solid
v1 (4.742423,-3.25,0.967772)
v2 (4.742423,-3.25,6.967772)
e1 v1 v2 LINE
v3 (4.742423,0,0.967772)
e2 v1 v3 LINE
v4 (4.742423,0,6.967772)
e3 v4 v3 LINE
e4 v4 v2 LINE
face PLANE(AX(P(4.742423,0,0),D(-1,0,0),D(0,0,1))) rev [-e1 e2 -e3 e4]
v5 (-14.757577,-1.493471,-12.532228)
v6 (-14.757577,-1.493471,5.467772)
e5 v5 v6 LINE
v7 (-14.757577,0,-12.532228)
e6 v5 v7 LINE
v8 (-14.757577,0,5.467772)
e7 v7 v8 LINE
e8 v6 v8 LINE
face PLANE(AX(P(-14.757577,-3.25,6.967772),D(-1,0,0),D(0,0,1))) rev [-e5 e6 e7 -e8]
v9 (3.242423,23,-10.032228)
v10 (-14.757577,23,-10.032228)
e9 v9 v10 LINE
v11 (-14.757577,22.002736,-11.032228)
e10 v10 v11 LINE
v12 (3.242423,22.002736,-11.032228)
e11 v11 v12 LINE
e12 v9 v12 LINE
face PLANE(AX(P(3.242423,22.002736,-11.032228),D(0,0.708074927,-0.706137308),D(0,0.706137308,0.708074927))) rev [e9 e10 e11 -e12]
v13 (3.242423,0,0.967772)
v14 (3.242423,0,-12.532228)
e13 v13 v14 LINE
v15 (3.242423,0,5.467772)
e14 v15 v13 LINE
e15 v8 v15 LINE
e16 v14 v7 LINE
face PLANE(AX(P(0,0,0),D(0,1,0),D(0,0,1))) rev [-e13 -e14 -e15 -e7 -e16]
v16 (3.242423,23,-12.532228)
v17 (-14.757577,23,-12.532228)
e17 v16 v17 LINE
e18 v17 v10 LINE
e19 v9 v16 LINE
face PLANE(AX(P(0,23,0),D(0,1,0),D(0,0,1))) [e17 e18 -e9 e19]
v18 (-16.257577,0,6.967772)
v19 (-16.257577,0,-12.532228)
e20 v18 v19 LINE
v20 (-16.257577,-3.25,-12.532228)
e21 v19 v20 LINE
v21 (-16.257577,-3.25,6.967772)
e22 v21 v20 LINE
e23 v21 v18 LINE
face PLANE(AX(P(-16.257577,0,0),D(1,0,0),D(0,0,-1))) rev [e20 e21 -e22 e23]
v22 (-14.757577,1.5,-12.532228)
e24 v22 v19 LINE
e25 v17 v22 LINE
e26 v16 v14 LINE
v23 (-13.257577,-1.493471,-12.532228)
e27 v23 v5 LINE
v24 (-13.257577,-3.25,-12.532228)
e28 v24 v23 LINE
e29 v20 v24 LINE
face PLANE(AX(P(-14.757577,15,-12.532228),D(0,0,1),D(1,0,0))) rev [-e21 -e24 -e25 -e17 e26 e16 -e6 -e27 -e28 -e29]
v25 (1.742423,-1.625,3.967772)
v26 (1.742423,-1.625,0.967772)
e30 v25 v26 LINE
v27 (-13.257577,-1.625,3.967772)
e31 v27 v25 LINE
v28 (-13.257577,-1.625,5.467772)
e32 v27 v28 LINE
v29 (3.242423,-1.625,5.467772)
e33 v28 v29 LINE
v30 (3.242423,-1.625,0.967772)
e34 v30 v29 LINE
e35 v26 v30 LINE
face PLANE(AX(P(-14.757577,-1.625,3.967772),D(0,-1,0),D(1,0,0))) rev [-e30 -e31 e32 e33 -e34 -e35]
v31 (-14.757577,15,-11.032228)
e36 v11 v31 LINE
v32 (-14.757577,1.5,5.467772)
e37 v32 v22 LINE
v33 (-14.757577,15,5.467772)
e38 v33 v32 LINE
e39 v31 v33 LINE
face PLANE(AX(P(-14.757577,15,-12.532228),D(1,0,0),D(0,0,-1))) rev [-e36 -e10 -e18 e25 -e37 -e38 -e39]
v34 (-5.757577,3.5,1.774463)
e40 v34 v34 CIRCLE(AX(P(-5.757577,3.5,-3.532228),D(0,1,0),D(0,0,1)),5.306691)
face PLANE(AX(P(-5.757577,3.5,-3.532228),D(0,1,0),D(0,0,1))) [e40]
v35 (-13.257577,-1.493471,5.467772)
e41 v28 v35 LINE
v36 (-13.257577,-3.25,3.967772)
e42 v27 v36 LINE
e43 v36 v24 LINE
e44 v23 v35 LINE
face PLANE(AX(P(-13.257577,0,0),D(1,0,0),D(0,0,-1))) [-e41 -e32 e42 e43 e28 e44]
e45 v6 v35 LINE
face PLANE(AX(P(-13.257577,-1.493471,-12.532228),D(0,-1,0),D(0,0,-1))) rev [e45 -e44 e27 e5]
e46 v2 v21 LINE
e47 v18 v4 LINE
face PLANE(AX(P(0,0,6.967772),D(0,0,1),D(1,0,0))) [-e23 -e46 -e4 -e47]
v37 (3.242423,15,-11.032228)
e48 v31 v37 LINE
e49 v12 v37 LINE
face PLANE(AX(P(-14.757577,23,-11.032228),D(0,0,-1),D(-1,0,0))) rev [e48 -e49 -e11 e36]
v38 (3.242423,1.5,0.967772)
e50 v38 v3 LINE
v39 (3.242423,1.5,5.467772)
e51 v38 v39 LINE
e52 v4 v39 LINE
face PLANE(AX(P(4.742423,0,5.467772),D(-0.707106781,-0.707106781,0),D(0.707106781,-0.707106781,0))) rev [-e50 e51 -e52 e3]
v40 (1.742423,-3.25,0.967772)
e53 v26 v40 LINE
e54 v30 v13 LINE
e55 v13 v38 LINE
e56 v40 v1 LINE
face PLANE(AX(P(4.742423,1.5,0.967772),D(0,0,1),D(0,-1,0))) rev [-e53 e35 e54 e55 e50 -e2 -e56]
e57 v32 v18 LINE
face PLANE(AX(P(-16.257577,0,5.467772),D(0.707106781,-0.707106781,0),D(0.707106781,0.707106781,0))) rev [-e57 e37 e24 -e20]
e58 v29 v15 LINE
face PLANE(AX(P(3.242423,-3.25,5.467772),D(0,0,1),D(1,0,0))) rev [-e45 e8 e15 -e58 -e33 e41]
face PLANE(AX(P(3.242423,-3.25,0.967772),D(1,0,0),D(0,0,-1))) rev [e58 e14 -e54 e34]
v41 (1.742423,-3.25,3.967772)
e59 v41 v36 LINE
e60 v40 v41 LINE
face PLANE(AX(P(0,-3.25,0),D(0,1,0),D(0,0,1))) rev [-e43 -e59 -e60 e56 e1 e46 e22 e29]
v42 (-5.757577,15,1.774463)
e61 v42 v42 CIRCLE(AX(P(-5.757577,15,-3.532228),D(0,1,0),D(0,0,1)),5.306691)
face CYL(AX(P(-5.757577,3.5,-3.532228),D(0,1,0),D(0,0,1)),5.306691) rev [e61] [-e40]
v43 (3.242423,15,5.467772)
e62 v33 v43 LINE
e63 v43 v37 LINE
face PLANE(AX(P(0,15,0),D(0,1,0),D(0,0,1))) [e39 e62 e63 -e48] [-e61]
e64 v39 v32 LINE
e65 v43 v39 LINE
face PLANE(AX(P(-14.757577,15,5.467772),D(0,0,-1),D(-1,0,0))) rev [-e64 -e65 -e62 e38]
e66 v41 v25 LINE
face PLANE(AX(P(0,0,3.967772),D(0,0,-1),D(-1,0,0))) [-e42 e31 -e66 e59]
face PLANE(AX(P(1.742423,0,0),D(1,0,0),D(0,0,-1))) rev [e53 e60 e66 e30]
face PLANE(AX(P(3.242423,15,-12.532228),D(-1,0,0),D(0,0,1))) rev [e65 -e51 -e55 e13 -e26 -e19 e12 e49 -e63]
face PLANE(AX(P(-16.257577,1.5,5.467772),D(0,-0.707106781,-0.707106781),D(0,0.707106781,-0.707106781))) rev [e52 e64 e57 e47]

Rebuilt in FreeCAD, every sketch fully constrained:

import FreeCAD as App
import Part
import Sketcher

V = App.Vector
Q = App.Units.Quantity

doc = App.newDocument("Part")
body = doc.addObject("PartDesign::Body", "Body")

# Sketch on XZ plane
sketch1 = body.newObject("Sketcher::SketchObject", "Sketch")
sketch1.AttachmentSupport = (doc.getObject("XZ_Plane"), [""])
sketch1.MapMode = "FlatFace"
sketch1.addGeometry([
    Part.LineSegment(V(-15, -13, 0), V(-15, 5, 0)),
    Part.LineSegment(V(-15, 5, 0), V(3, 5, 0)),
    Part.LineSegment(V(3, 5, 0), V(3, -13, 0)),
    Part.LineSegment(V(3, -13, 0), V(-15, -13, 0)),
], False)
sketch1.addConstraint([
    Sketcher.Constraint("Coincident", 0, 2, 1, 1),
    Sketcher.Constraint("Coincident", 1, 2, 2, 1),
    Sketcher.Constraint("Coincident", 2, 2, 3, 1),
    Sketcher.Constraint("Coincident", 3, 2, 0, 1),
    Sketcher.Constraint("Vertical", 0),
    Sketcher.Constraint("Horizontal", 1),
    Sketcher.Constraint("Vertical", 2),
    Sketcher.Constraint("Horizontal", 3),
    Sketcher.Constraint("Equal", 3, 0),
    Sketcher.Constraint("DistanceX", 1, 1, 1, 2, Q("18 mm")),
    Sketcher.Constraint("DistanceX", 0, 2, -1, 1, Q("14.757577 mm")),
    Sketcher.Constraint("DistanceY", -1, 1, 0, 2, Q("5.467772 mm")),
])
pad1 = body.newObject("PartDesign::Pad", "Pad")
pad1.Profile = sketch1
pad1.Length = 15
pad1.Reversed = True

# Sketch on XZ plane
sketch2 = body.newObject("Sketcher::SketchObject", "Sketch001")
sketch2.AttachmentSupport = (doc.getObject("XZ_Plane"), [""])
sketch2.MapMode = "FlatFace"
sketch2.AttachmentOffset = App.Placement(V(0, 0, -15), App.Rotation())
sketch2.addGeometry(Part.Circle(V(-6, -4, 0), V(0, 0, 1), 5), False)
sketch2.addConstraint([
    Sketcher.Constraint("Diameter", 0, Q("10.613383 mm")),
    Sketcher.Constraint("DistanceX", 0, 3, -1, 1, Q("5.757577 mm")),
    Sketcher.Constraint("DistanceY", 0, 3, -1, 1, Q("3.532228 mm")),
])
pocket1 = body.newObject("PartDesign::Pocket", "Pocket")
pocket1.Profile = sketch2
pocket1.Length = 11.5
pocket1.Reversed = True

# Sketch on XZ plane
sketch3 = body.newObject("Sketcher::SketchObject", "Sketch002")
sketch3.AttachmentSupport = (doc.getObject("XZ_Plane"), [""])
sketch3.MapMode = "FlatFace"
sketch3.AttachmentOffset = App.Placement(V(0, 0, -15), App.Rotation())
sketch3.addGeometry([
    Part.LineSegment(V(-14.8, -12.5, 0), V(-14.8, -11, 0)),
    Part.LineSegment(V(-14.8, -11, 0), V(3.2, -11, 0)),
    Part.LineSegment(V(3.2, -11, 0), V(3.2, -12.5, 0)),
    Part.LineSegment(V(3.2, -12.5, 0), V(-14.8, -12.5, 0)),
], False)
sketch3.addConstraint([
    Sketcher.Constraint("Coincident", 0, 2, 1, 1),
    Sketcher.Constraint("Coincident", 1, 2, 2, 1),
    Sketcher.Constraint("Coincident", 2, 2, 3, 1),
    Sketcher.Constraint("Coincident", 3, 2, 0, 1),
    Sketcher.Constraint("Vertical", 0),
    Sketcher.Constraint("Horizontal", 1),
    Sketcher.Constraint("Vertical", 2),
    Sketcher.Constraint("Horizontal", 3),
    Sketcher.Constraint("DistanceX", 1, 1, 1, 2, Q("18 mm")),
    Sketcher.Constraint("DistanceY", 0, 1, 0, 2, Q("1.5 mm")),
    Sketcher.Constraint("DistanceX", 0, 2, -1, 1, Q("14.757577 mm")),
    Sketcher.Constraint("DistanceY", 0, 2, -1, 1, Q("11.032228 mm")),
])
pad2 = body.newObject("PartDesign::Pad", "Pad001")
pad2.Profile = sketch3
pad2.Length = 8
pad2.Reversed = True

# Sketch on XY plane
sketch4 = body.newObject("Sketcher::SketchObject", "Sketch003")
sketch4.AttachmentSupport = (doc.getObject("XY_Plane"), [""])
sketch4.MapMode = "FlatFace"
sketch4.AttachmentOffset = App.Placement(V(0, 0, -11.032228), App.Rotation())
sketch4.addGeometry([
    Part.LineSegment(V(-14.8, 23, 0), V(-14.8, 22, 0)),
    Part.LineSegment(V(-14.8, 22, 0), V(3.2, 22, 0)),
    Part.LineSegment(V(3.2, 22, 0), V(3.2, 23, 0)),
    Part.LineSegment(V(3.2, 23, 0), V(-14.8, 23, 0)),
], False)
sketch4.addConstraint([
    Sketcher.Constraint("Coincident", 0, 2, 1, 1),
    Sketcher.Constraint("Coincident", 1, 2, 2, 1),
    Sketcher.Constraint("Coincident", 2, 2, 3, 1),
    Sketcher.Constraint("Coincident", 3, 2, 0, 1),
    Sketcher.Constraint("Vertical", 0),
    Sketcher.Constraint("Horizontal", 1),
    Sketcher.Constraint("Vertical", 2),
    Sketcher.Constraint("Horizontal", 3),
    Sketcher.Constraint("DistanceX", 1, 1, 1, 2, Q("18 mm")),
    Sketcher.Constraint("DistanceY", -1, 1, 2, 2, Q("23 mm")),
    Sketcher.Constraint("DistanceY", 0, 2, 0, 1, Q("0.997264 mm")),
    Sketcher.Constraint("DistanceX", 0, 2, -1, 1, Q("14.757577 mm")),
])
pad3 = body.newObject("PartDesign::Pad", "Pad002")
pad3.Profile = sketch4
pad3.Length = 1

# Sketch on YZ plane
sketch5 = body.newObject("Sketcher::SketchObject", "Sketch004")
sketch5.AttachmentSupport = (doc.getObject("YZ_Plane"), [""])
sketch5.MapMode = "FlatFace"
sketch5.AttachmentOffset = App.Placement(V(0, 0, -14.757577), App.Rotation())
sketch5.addGeometry([
    Part.LineSegment(V(23, -10, 0), V(22, -11, 0)),
    Part.LineSegment(V(22, -11, 0), V(22, -10, 0)),
    Part.LineSegment(V(22, -10, 0), V(23, -10, 0)),
], False)
sketch5.addConstraint([
    Sketcher.Constraint("Coincident", 0, 2, 1, 1),
    Sketcher.Constraint("Coincident", 1, 2, 2, 1),
    Sketcher.Constraint("Coincident", 2, 2, 0, 1),
    Sketcher.Constraint("Vertical", 1),
    Sketcher.Constraint("Horizontal", 2),
    Sketcher.Constraint("DistanceY", 1, 1, 1, 2, Q("1 mm")),
    Sketcher.Constraint("DistanceX", -1, 1, 2, 2, Q("23 mm")),
    Sketcher.Constraint("Distance", 0, Q("1.41228 mm")),
    Sketcher.Constraint("DistanceY", 0, 2, -1, 1, Q("11.032228 mm")),
])
pocket2 = body.newObject("PartDesign::Pocket", "Pocket001")
pocket2.Profile = sketch5
pocket2.Length = 18
pocket2.Reversed = True

# Sketch on XY plane
sketch6 = body.newObject("Sketcher::SketchObject", "Sketch005")
sketch6.AttachmentSupport = (doc.getObject("XY_Plane"), [""])
sketch6.MapMode = "FlatFace"
sketch6.AttachmentOffset = App.Placement(V(0, 0, 5.467772), App.Rotation())
sketch6.addGeometry([
    Part.LineSegment(V(-14.8, 1.5, 0), V(-14.8, 0, 0)),
    Part.LineSegment(V(-14.8, 0, 0), V(3.2, 0, 0)),
    Part.LineSegment(V(3.2, 0, 0), V(3.2, 1.5, 0)),
    Part.LineSegment(V(3.2, 1.5, 0), V(-14.8, 1.5, 0)),
], False)
sketch6.addConstraint([
    Sketcher.Constraint("Coincident", 0, 2, 1, 1),
    Sketcher.Constraint("Coincident", 1, 2, 2, 1),
    Sketcher.Constraint("Coincident", 2, 2, 3, 1),
    Sketcher.Constraint("Coincident", 3, 2, 0, 1),
    Sketcher.Constraint("Vertical", 0),
    Sketcher.Constraint("Horizontal", 1),
    Sketcher.Constraint("Vertical", 2),
    Sketcher.Constraint("Horizontal", 3),
    Sketcher.Constraint("PointOnObject", 0, 2, -1),
    Sketcher.Constraint("DistanceX", 1, 1, 1, 2, Q("18 mm")),
    Sketcher.Constraint("DistanceY", 0, 2, 0, 1, Q("1.5 mm")),
    Sketcher.Constraint("DistanceX", 0, 2, -1, 1, Q("14.757577 mm")),
])
pad4 = body.newObject("PartDesign::Pad", "Pad003")
pad4.Profile = sketch6
pad4.Length = 1.5

# Sketch on XZ plane
sketch7 = body.newObject("Sketcher::SketchObject", "Sketch006")
sketch7.AttachmentSupport = (doc.getObject("XZ_Plane"), [""])
sketch7.MapMode = "FlatFace"
sketch7.addGeometry([
    Part.LineSegment(V(-14.8, 7, 0), V(-14.8, 5.5, 0)),
    Part.LineSegment(V(-14.8, 5.5, 0), V(3.2, 5.5, 0)),
    Part.LineSegment(V(3.2, 5.5, 0), V(3.2, 7, 0)),
    Part.LineSegment(V(3.2, 7, 0), V(-14.8, 7, 0)),
], False)
sketch7.addConstraint([
    Sketcher.Constraint("Coincident", 0, 2, 1, 1),
    Sketcher.Constraint("Coincident", 1, 2, 2, 1),
    Sketcher.Constraint("Coincident", 2, 2, 3, 1),
    Sketcher.Constraint("Coincident", 3, 2, 0, 1),
    Sketcher.Constraint("Vertical", 0),
    Sketcher.Constraint("Horizontal", 1),
    Sketcher.Constraint("Vertical", 2),
    Sketcher.Constraint("Horizontal", 3),
    Sketcher.Constraint("DistanceX", 1, 1, 1, 2, Q("18 mm")),
    Sketcher.Constraint("DistanceY", 0, 2, 0, 1, Q("1.5 mm")),
    Sketcher.Constraint("DistanceX", 0, 2, -1, 1, Q("14.757577 mm")),
    Sketcher.Constraint("DistanceY", -1, 1, 0, 2, Q("5.467772 mm")),
])
pad5 = body.newObject("PartDesign::Pad", "Pad004")
pad5.Profile = sketch7
pad5.Length = 3.25

# Sketch on XY plane
sketch8 = body.newObject("Sketcher::SketchObject", "Sketch007")
sketch8.AttachmentSupport = (doc.getObject("XY_Plane"), [""])
sketch8.MapMode = "FlatFace"
sketch8.AttachmentOffset = App.Placement(V(0, 0, 5.467772), App.Rotation())
sketch8.addGeometry([
    Part.LineSegment(V(3.2, -1.6, 0), V(3.2, -3.2, 0)),
    Part.LineSegment(V(3.2, -3.2, 0), V(-14.8, -3.2, 0)),
    Part.LineSegment(V(-14.8, -3.2, 0), V(-14.8, -1.6, 0)),
    Part.LineSegment(V(-14.8, -1.6, 0), V(3.2, -1.6, 0)),
], False)
sketch8.addConstraint([
    Sketcher.Constraint("Coincident", 0, 2, 1, 1),
    Sketcher.Constraint("Coincident", 1, 2, 2, 1),
    Sketcher.Constraint("Coincident", 2, 2, 3, 1),
    Sketcher.Constraint("Coincident", 3, 2, 0, 1),
    Sketcher.Constraint("Vertical", 0),
    Sketcher.Constraint("Horizontal", 1),
    Sketcher.Constraint("Vertical", 2),
    Sketcher.Constraint("Horizontal", 3),
    Sketcher.Constraint("DistanceX", 1, 2, 1, 1, Q("18 mm")),
    Sketcher.Constraint("DistanceY", 0, 2, 0, 1, Q("1.625 mm")),
    Sketcher.Constraint("DistanceY", 0, 2, -1, 1, Q("3.25 mm")),
    Sketcher.Constraint("DistanceX", -1, 1, 0, 2, Q("3.242423 mm")),
])
pad6 = body.newObject("PartDesign::Pad", "Pad005")
pad6.Profile = sketch8
pad6.Length = 1.5
pad6.Reversed = True

# Sketch on YZ plane
sketch9 = body.newObject("Sketcher::SketchObject", "Sketch008")
sketch9.AttachmentSupport = (doc.getObject("YZ_Plane"), [""])
sketch9.MapMode = "FlatFace"
sketch9.AttachmentOffset = App.Placement(V(0, 0, -14.757577), App.Rotation())
sketch9.addGeometry([
    Part.LineSegment(V(1.5, -12.5, 0), V(0, -12.5, 0)),
    Part.LineSegment(V(0, -12.5, 0), V(0, 7, 0)),
    Part.LineSegment(V(0, 7, 0), V(1.5, 7, 0)),
    Part.LineSegment(V(1.5, 7, 0), V(1.5, -12.5, 0)),
], False)
sketch9.addConstraint([
    Sketcher.Constraint("Coincident", 0, 2, 1, 1),
    Sketcher.Constraint("Coincident", 1, 2, 2, 1),
    Sketcher.Constraint("Coincident", 2, 2, 3, 1),
    Sketcher.Constraint("Coincident", 3, 2, 0, 1),
    Sketcher.Constraint("Horizontal", 0),
    Sketcher.Constraint("Vertical", 1),
    Sketcher.Constraint("Horizontal", 2),
    Sketcher.Constraint("Vertical", 3),
    Sketcher.Constraint("PointOnObject", 0, 2, -2),
    Sketcher.Constraint("DistanceX", 0, 2, 0, 1, Q("1.5 mm")),
    Sketcher.Constraint("DistanceY", 1, 1, 1, 2, Q("19.5 mm")),
    Sketcher.Constraint("DistanceY", 0, 2, -1, 1, Q("12.532228 mm")),
])
pad7 = body.newObject("PartDesign::Pad", "Pad006")
pad7.Profile = sketch9
pad7.Length = 1.5
pad7.Reversed = True

# Sketch on XZ plane
sketch10 = body.newObject("Sketcher::SketchObject", "Sketch009")
sketch10.AttachmentSupport = (doc.getObject("XZ_Plane"), [""])
sketch10.MapMode = "FlatFace"
sketch10.addGeometry([
    Part.LineSegment(V(-16.3, 7, 0), V(-16.3, -12.5, 0)),
    Part.LineSegment(V(-16.3, -12.5, 0), V(-14.8, -12.5, 0)),
    Part.LineSegment(V(-14.8, -12.5, 0), V(-14.8, 7, 0)),
    Part.LineSegment(V(-14.8, 7, 0), V(-16.3, 7, 0)),
], False)
sketch10.addConstraint([
    Sketcher.Constraint("Coincident", 0, 2, 1, 1),
    Sketcher.Constraint("Coincident", 1, 2, 2, 1),
    Sketcher.Constraint("Coincident", 2, 2, 3, 1),
    Sketcher.Constraint("Coincident", 3, 2, 0, 1),
    Sketcher.Constraint("Vertical", 0),
    Sketcher.Constraint("Horizontal", 1),
    Sketcher.Constraint("Vertical", 2),
    Sketcher.Constraint("Horizontal", 3),
    Sketcher.Constraint("DistanceX", 1, 1, 1, 2, Q("1.5 mm")),
    Sketcher.Constraint("DistanceY", 0, 2, 0, 1, Q("19.5 mm")),
    Sketcher.Constraint("DistanceX", 0, 2, -1, 1, Q("16.257577 mm")),
    Sketcher.Constraint("DistanceY", 0, 2, -1, 1, Q("12.532228 mm")),
])
pad8 = body.newObject("PartDesign::Pad", "Pad007")
pad8.Profile = sketch10
pad8.Length = 3.25

# Sketch on YZ plane
sketch11 = body.newObject("Sketcher::SketchObject", "Sketch010")
sketch11.AttachmentSupport = (doc.getObject("YZ_Plane"), [""])
sketch11.MapMode = "FlatFace"
sketch11.AttachmentOffset = App.Placement(V(0, 0, -14.757577), App.Rotation())
sketch11.addGeometry([
    Part.LineSegment(V(-1.5, 7, 0), V(-3.3, 7, 0)),
    Part.LineSegment(V(-3.3, 7, 0), V(-3.3, -12.5, 0)),
    Part.LineSegment(V(-3.3, -12.5, 0), V(-1.5, -12.5, 0)),
    Part.LineSegment(V(-1.5, -12.5, 0), V(-1.5, 7, 0)),
], False)
sketch11.addConstraint([
    Sketcher.Constraint("Coincident", 0, 2, 1, 1),
    Sketcher.Constraint("Coincident", 1, 2, 2, 1),
    Sketcher.Constraint("Coincident", 2, 2, 3, 1),
    Sketcher.Constraint("Coincident", 3, 2, 0, 1),
    Sketcher.Constraint("Horizontal", 0),
    Sketcher.Constraint("Vertical", 1),
    Sketcher.Constraint("Horizontal", 2),
    Sketcher.Constraint("Vertical", 3),
    Sketcher.Constraint("DistanceY", 1, 2, 1, 1, Q("19.5 mm")),
    Sketcher.Constraint("DistanceX", 0, 2, -1, 1, Q("3.25 mm")),
    Sketcher.Constraint("DistanceX", 0, 2, 0, 1, Q("1.756529 mm")),
    Sketcher.Constraint("DistanceY", -1, 1, 0, 2, Q("6.967772 mm")),
])
pad9 = body.newObject("PartDesign::Pad", "Pad008")
pad9.Profile = sketch11
pad9.Length = 1.5

# Sketch on YZ plane
sketch12 = body.newObject("Sketcher::SketchObject", "Sketch011")
sketch12.AttachmentSupport = (doc.getObject("YZ_Plane"), [""])
sketch12.MapMode = "FlatFace"
sketch12.AttachmentOffset = App.Placement(V(0, 0, 3.242423), App.Rotation())
sketch12.addGeometry([
    Part.LineSegment(V(1.5, 7, 0), V(0, 7, 0)),
    Part.LineSegment(V(0, 7, 0), V(0, 1, 0)),
    Part.LineSegment(V(0, 1, 0), V(1.5, 1, 0)),
    Part.LineSegment(V(1.5, 1, 0), V(1.5, 7, 0)),
], False)
sketch12.addConstraint([
    Sketcher.Constraint("Coincident", 0, 2, 1, 1),
    Sketcher.Constraint("Coincident", 1, 2, 2, 1),
    Sketcher.Constraint("Coincident", 2, 2, 3, 1),
    Sketcher.Constraint("Coincident", 3, 2, 0, 1),
    Sketcher.Constraint("Horizontal", 0),
    Sketcher.Constraint("Vertical", 1),
    Sketcher.Constraint("Horizontal", 2),
    Sketcher.Constraint("Vertical", 3),
    Sketcher.Constraint("PointOnObject", 0, 2, -2),
    Sketcher.Constraint("DistanceY", 1, 2, 1, 1, Q("6 mm")),
    Sketcher.Constraint("DistanceX", 0, 2, 0, 1, Q("1.5 mm")),
    Sketcher.Constraint("DistanceY", -1, 1, 0, 2, Q("6.967772 mm")),
])
pad10 = body.newObject("PartDesign::Pad", "Pad009")
pad10.Profile = sketch12
pad10.Length = 1.5

# Sketch on XZ plane
sketch13 = body.newObject("Sketcher::SketchObject", "Sketch012")
sketch13.AttachmentSupport = (doc.getObject("XZ_Plane"), [""])
sketch13.MapMode = "FlatFace"
sketch13.addGeometry([
    Part.LineSegment(V(3.2, 7, 0), V(3.2, 1, 0)),
    Part.LineSegment(V(3.2, 1, 0), V(4.7, 1, 0)),
    Part.LineSegment(V(4.7, 1, 0), V(4.7, 7, 0)),
    Part.LineSegment(V(4.7, 7, 0), V(3.2, 7, 0)),
], False)
sketch13.addConstraint([
    Sketcher.Constraint("Coincident", 0, 2, 1, 1),
    Sketcher.Constraint("Coincident", 1, 2, 2, 1),
    Sketcher.Constraint("Coincident", 2, 2, 3, 1),
    Sketcher.Constraint("Coincident", 3, 2, 0, 1),
    Sketcher.Constraint("Vertical", 0),
    Sketcher.Constraint("Horizontal", 1),
    Sketcher.Constraint("Vertical", 2),
    Sketcher.Constraint("Horizontal", 3),
    Sketcher.Constraint("DistanceY", 0, 2, 0, 1, Q("6 mm")),
    Sketcher.Constraint("DistanceX", 1, 1, 1, 2, Q("1.5 mm")),
    Sketcher.Constraint("DistanceX", -1, 1, 0, 2, Q("3.242423 mm")),
    Sketcher.Constraint("DistanceY", -1, 1, 0, 2, Q("0.967772 mm")),
])
pad11 = body.newObject("PartDesign::Pad", "Pad010")
pad11.Profile = sketch13
pad11.Length = 3.25

# Sketch on YZ plane
sketch14 = body.newObject("Sketcher::SketchObject", "Sketch013")
sketch14.AttachmentSupport = (doc.getObject("YZ_Plane"), [""])
sketch14.MapMode = "FlatFace"
sketch14.AttachmentOffset = App.Placement(V(0, 0, 3.242423), App.Rotation())
sketch14.addGeometry([
    Part.LineSegment(V(-1.6, 1, 0), V(-3.2, 1, 0)),
    Part.LineSegment(V(-3.2, 1, 0), V(-3.2, 4, 0)),
    Part.LineSegment(V(-3.2, 4, 0), V(-1.6, 4, 0)),
    Part.LineSegment(V(-1.6, 4, 0), V(-1.6, 1, 0)),
], False)
sketch14.addConstraint([
    Sketcher.Constraint("Coincident", 0, 2, 1, 1),
    Sketcher.Constraint("Coincident", 1, 2, 2, 1),
    Sketcher.Constraint("Coincident", 2, 2, 3, 1),
    Sketcher.Constraint("Coincident", 3, 2, 0, 1),
    Sketcher.Constraint("Horizontal", 0),
    Sketcher.Constraint("Vertical", 1),
    Sketcher.Constraint("Horizontal", 2),
    Sketcher.Constraint("Vertical", 3),
    Sketcher.Constraint("DistanceY", 1, 1, 1, 2, Q("3 mm")),
    Sketcher.Constraint("DistanceX", 0, 2, 0, 1, Q("1.625 mm")),
    Sketcher.Constraint("DistanceX", 0, 2, -1, 1, Q("3.25 mm")),
    Sketcher.Constraint("DistanceY", -1, 1, 0, 2, Q("0.967772 mm")),
])
pad12 = body.newObject("PartDesign::Pad", "Pad011")
pad12.Profile = sketch14
pad12.Length = 1.5
pad12.Reversed = True

# Sketch on XY plane
sketch15 = body.newObject("Sketcher::SketchObject", "Sketch014")
sketch15.AttachmentSupport = (doc.getObject("XY_Plane"), [""])
sketch15.MapMode = "FlatFace"
sketch15.AttachmentOffset = App.Placement(V(0, 0, -12.532228), App.Rotation())
sketch15.addGeometry([
    Part.LineSegment(V(-14.8, 1.5, 0), V(-16.3, 0, 0)),  # 0
    Part.LineSegment(V(-16.3, 0, 0), V(-16.3, 1.5, 0)),  # 1
    Part.LineSegment(V(-16.3, 1.5, 0), V(-14.8, 1.5, 0)),  # 2
    Part.LineSegment(V(4.7, 0, 0), V(3.2, 1.5, 0)),  # 3
    Part.LineSegment(V(3.2, 1.5, 0), V(4.7, 1.5, 0)),  # 4
    Part.LineSegment(V(4.7, 1.5, 0), V(4.7, 0, 0)),  # 5
], False)
sketch15.addConstraint([
    Sketcher.Constraint("Coincident", 0, 2, 1, 1),
    Sketcher.Constraint("Coincident", 1, 2, 2, 1),
    Sketcher.Constraint("Coincident", 2, 2, 0, 1),
    Sketcher.Constraint("Coincident", 3, 2, 4, 1),
    Sketcher.Constraint("Coincident", 4, 2, 5, 1),
    Sketcher.Constraint("Coincident", 5, 2, 3, 1),
    Sketcher.Constraint("Vertical", 1),
    Sketcher.Constraint("Horizontal", 2),
    Sketcher.Constraint("Horizontal", 4),
    Sketcher.Constraint("Vertical", 5),
    Sketcher.Constraint("PointOnObject", 0, 2, -1),
    Sketcher.Constraint("PointOnObject", 5, 2, -1),
    Sketcher.Constraint("Perpendicular", 0, 3),
    Sketcher.Constraint("Horizontal", 2, 2, 3, 2),
    Sketcher.Constraint("Equal", 2, 4),
    Sketcher.Constraint("DistanceX", 2, 1, 2, 2, Q("1.5 mm")),
    Sketcher.Constraint("DistanceX", 2, 2, 3, 2, Q("18 mm")),
    Sketcher.Constraint("DistanceX", 0, 2, -1, 1, Q("16.257577 mm")),
])
pocket3 = body.newObject("PartDesign::Pocket", "Pocket002")
pocket3.Profile = sketch15
pocket3.Length = 18
pocket3.Reversed = True

# Sketch on YZ plane
sketch16 = body.newObject("Sketcher::SketchObject", "Sketch015")
sketch16.AttachmentSupport = (doc.getObject("YZ_Plane"), [""])
sketch16.MapMode = "FlatFace"
sketch16.AttachmentOffset = App.Placement(V(0, 0, 4.742423), App.Rotation())
sketch16.addGeometry([
    Part.LineSegment(V(1.5, 7, 0), V(0, 7, 0)),
    Part.LineSegment(V(0, 7, 0), V(1.5, 5.5, 0)),
    Part.LineSegment(V(1.5, 5.5, 0), V(1.5, 7, 0)),
], False)
sketch16.addConstraint([
    Sketcher.Constraint("Coincident", 0, 2, 1, 1),
    Sketcher.Constraint("Coincident", 1, 2, 2, 1),
    Sketcher.Constraint("Coincident", 2, 2, 0, 1),
    Sketcher.Constraint("Horizontal", 0),
    Sketcher.Constraint("Vertical", 2),
    Sketcher.Constraint("PointOnObject", 0, 2, -2),
    Sketcher.Constraint("Equal", 0, 2),
    Sketcher.Constraint("DistanceX", 0, 2, 0, 1, Q("1.5 mm")),
    Sketcher.Constraint("DistanceY", -1, 1, 0, 2, Q("6.967772 mm")),
])
pocket4 = body.newObject("PartDesign::Pocket", "Pocket003")
pocket4.Profile = sketch16
pocket4.Length = 21

# Sketch on XY plane
sketch17 = body.newObject("Sketcher::SketchObject", "Sketch016")
sketch17.AttachmentSupport = (doc.getObject("XY_Plane"), [""])
sketch17.MapMode = "FlatFace"
sketch17.AttachmentOffset = App.Placement(V(0, 0, 5.467772), App.Rotation())
sketch17.addGeometry([
    Part.LineSegment(V(4.7, 0, 0), V(3.2, 1.5, 0)),
    Part.LineSegment(V(3.2, 1.5, 0), V(4.7, 1.5, 0)),
    Part.LineSegment(V(4.7, 1.5, 0), V(4.7, 0, 0)),
], False)
sketch17.addConstraint([
    Sketcher.Constraint("Coincident", 0, 2, 1, 1),
    Sketcher.Constraint("Coincident", 1, 2, 2, 1),
    Sketcher.Constraint("Coincident", 2, 2, 0, 1),
    Sketcher.Constraint("Horizontal", 1),
    Sketcher.Constraint("Vertical", 2),
    Sketcher.Constraint("PointOnObject", 2, 2, -1),
    Sketcher.Constraint("Equal", 1, 2),
    Sketcher.Constraint("DistanceX", 1, 1, 1, 2, Q("1.5 mm")),
    Sketcher.Constraint("DistanceX", -1, 1, 0, 2, Q("3.242423 mm")),
])
pocket5 = body.newObject("PartDesign::Pocket", "Pocket004")
pocket5.Profile = sketch17
pocket5.Length = 2
pocket5.Reversed = True

# Sketch on XY plane
sketch18 = body.newObject("Sketcher::SketchObject", "Sketch017")
sketch18.AttachmentSupport = (doc.getObject("XY_Plane"), [""])
sketch18.MapMode = "FlatFace"
sketch18.AttachmentOffset = App.Placement(V(0, 0, 5.467772), App.Rotation())
sketch18.addGeometry([
    Part.LineSegment(V(-14.8, 1.5, 0), V(-16.3, 0, 0)),
    Part.LineSegment(V(-16.3, 0, 0), V(-16.3, 1.5, 0)),
    Part.LineSegment(V(-16.3, 1.5, 0), V(-14.8, 1.5, 0)),
], False)
sketch18.addConstraint([
    Sketcher.Constraint("Coincident", 0, 2, 1, 1),
    Sketcher.Constraint("Coincident", 1, 2, 2, 1),
    Sketcher.Constraint("Coincident", 2, 2, 0, 1),
    Sketcher.Constraint("Vertical", 1),
    Sketcher.Constraint("Horizontal", 2),
    Sketcher.Constraint("PointOnObject", 0, 2, -1),
    Sketcher.Constraint("Equal", 2, 1),
    Sketcher.Constraint("DistanceX", 2, 1, 2, 2, Q("1.5 mm")),
    Sketcher.Constraint("DistanceX", 0, 2, -1, 1, Q("16.257577 mm")),
])
pocket6 = body.newObject("PartDesign::Pocket", "Pocket005")
pocket6.Profile = sketch18
pocket6.Length = 2
pocket6.Reversed = True

doc.recompute()
